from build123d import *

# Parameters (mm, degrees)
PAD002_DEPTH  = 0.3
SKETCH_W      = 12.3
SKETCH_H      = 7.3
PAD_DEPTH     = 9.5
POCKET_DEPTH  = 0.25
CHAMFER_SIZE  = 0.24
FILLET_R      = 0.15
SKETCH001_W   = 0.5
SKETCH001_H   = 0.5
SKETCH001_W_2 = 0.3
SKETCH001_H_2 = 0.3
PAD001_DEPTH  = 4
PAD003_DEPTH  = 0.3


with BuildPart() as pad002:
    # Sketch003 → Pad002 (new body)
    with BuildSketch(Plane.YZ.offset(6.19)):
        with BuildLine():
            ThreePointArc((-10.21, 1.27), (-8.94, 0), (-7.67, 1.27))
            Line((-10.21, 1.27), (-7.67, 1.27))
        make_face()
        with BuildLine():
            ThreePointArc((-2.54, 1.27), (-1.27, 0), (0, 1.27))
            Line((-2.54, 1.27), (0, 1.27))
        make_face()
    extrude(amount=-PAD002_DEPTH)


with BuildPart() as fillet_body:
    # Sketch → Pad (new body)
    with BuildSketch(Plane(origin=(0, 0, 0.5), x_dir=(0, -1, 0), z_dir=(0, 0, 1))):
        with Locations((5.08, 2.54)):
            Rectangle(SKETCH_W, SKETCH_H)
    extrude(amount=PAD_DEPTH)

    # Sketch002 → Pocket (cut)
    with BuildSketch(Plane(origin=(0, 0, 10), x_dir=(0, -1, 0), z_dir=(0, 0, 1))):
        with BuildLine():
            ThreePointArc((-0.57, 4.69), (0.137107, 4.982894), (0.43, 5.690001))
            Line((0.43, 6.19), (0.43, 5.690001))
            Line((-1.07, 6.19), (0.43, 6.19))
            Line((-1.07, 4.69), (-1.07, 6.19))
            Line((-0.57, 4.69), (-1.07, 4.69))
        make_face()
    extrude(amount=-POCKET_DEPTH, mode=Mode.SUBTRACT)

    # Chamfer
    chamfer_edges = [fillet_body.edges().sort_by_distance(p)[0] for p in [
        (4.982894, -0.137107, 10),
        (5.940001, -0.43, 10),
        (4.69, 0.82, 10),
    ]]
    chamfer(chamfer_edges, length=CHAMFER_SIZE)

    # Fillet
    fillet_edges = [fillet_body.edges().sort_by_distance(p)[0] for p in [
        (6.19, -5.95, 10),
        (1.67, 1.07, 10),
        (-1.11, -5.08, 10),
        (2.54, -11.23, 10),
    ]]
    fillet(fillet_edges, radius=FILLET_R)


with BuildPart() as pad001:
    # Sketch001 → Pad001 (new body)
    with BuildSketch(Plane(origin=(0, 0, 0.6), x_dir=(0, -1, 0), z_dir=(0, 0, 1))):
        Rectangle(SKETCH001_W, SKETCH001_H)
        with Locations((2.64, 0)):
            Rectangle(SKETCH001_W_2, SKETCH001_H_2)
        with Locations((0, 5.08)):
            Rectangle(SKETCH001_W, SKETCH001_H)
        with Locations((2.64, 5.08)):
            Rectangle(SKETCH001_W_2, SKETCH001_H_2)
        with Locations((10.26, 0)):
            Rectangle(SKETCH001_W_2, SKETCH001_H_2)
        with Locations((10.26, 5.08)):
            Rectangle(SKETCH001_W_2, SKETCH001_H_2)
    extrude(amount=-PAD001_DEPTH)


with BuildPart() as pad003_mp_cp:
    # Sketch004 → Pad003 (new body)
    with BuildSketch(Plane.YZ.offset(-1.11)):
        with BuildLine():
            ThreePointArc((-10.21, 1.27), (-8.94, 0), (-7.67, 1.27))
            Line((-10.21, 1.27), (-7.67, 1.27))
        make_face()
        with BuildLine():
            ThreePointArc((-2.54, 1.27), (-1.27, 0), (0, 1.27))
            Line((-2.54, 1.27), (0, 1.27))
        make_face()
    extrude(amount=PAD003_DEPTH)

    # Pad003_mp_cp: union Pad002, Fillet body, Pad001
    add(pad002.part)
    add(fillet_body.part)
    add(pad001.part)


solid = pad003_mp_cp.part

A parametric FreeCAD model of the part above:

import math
import FreeCAD as App
import Part
import Sketcher
from FreeCAD import Vector


def edges_at(feature, points):
    """Names of the edges that pass closest to the given points."""
    edges = feature.Shape.Edges
    near = lambda p: min(range(len(edges)), key=lambda i: edges[i].distToShape(Part.Vertex(*p))[0])
    return sorted({f"Edge{near(p) + 1}" for p in points})

doc = App.newDocument("Part")
body = doc.addObject("PartDesign::Body", "Body")
body.AllowCompound = True

sketch1 = doc.addObject("Sketcher::SketchObject", "Sketch")
body.addObject(sketch1)
sketch1.AttachmentSupport = (doc.YZ_Plane, [""])
sketch1.MapMode = "FlatFace"
sketch1.AttachmentOffset = App.Placement(Vector(0, 0, 6.19), App.Rotation())
sketch1.addGeometry(Part.ArcOfCircle(Part.Circle(Vector(-8.9, 1.3, 0), Vector(0, 0, 1), 1.3), math.radians(180), math.radians(360)), False)
sketch1.addGeometry(Part.LineSegment(Vector(-7.7, 1.3, 0), Vector(-10.2, 1.3, 0)), False)
sketch1.addGeometry(Part.ArcOfCircle(Part.Circle(Vector(-1.3, 1.3, 0), Vector(0, 0, 1), 1.3), math.radians(180), math.radians(360)), False)
sketch1.addGeometry(Part.LineSegment(Vector(0, 1.3, 0), Vector(-2.5, 1.3, 0)), False)
sketch1.addConstraint(Sketcher.Constraint("Coincident", 0, 1, 1, 2))
sketch1.addConstraint(Sketcher.Constraint("Coincident", 1, 1, 0, 2))
sketch1.addConstraint(Sketcher.Constraint("Coincident", 2, 1, 3, 2))
sketch1.addConstraint(Sketcher.Constraint("Coincident", 3, 1, 2, 2))
sketch1.addConstraint(Sketcher.Constraint("Horizontal", 1))
sketch1.addConstraint(Sketcher.Constraint("Horizontal", 3))
sketch1.addConstraint(Sketcher.Constraint("Equal", 0, 2))
sketch1.addConstraint(Sketcher.Constraint("PointOnObject", 3, 1, -2))
sketch1.addConstraint(Sketcher.Constraint("Horizontal", 0, 3, 2, 3))
sketch1.addConstraint(Sketcher.Constraint("Horizontal", 2, 3, 0, 1))
sketch1.addConstraint(Sketcher.Constraint("Horizontal", 1, 1, 2, 1))
sketch1.addConstraint(Sketcher.Constraint("Radius", 0, 1.27))
sketch1.addConstraint(Sketcher.Constraint("DistanceX", 1, 1, 2, 3, 6.4))
sketch1.addConstraint(Sketcher.Constraint("DistanceY", -1, 1, 0, 3, 1.27))
pad1 = doc.addObject("PartDesign::Pad", "Pad")
body.addObject(pad1)
pad1.Profile = sketch1
pad1.Length = 0.3
pad1.Reversed = True
body2 = doc.addObject("PartDesign::Body", "Body001")

sketch2 = doc.addObject("Sketcher::SketchObject", "Sketch001")
body2.addObject(sketch2)
sketch2.AttachmentSupport = (doc.getObject("XY_Plane001"), [""])
sketch2.MapMode = "FlatFace"
sketch2.AttachmentOffset = App.Placement(Vector(0, 0, 0.5), App.Rotation())
sketch2.addGeometry(Part.LineSegment(Vector(6, 1, 0), Vector(-1, 1, 0)), False)
sketch2.addGeometry(Part.LineSegment(Vector(-1, 1, 0), Vector(-1, -11, 0)), False)
sketch2.addGeometry(Part.LineSegment(Vector(-1, -11, 0), Vector(6, -11, 0)), False)
sketch2.addGeometry(Part.LineSegment(Vector(6, -11, 0), Vector(6, 1, 0)), False)
sketch2.addConstraint(Sketcher.Constraint("Coincident", 0, 2, 1, 1))
sketch2.addConstraint(Sketcher.Constraint("Coincident", 1, 2, 2, 1))
sketch2.addConstraint(Sketcher.Constraint("Coincident", 2, 2, 3, 1))
sketch2.addConstraint(Sketcher.Constraint("Coincident", 3, 2, 0, 1))
sketch2.addConstraint(Sketcher.Constraint("Horizontal", 0))
sketch2.addConstraint(Sketcher.Constraint("Vertical", 1))
sketch2.addConstraint(Sketcher.Constraint("Horizontal", 2))
sketch2.addConstraint(Sketcher.Constraint("Vertical", 3))
sketch2.addConstraint(Sketcher.Constraint("DistanceX", 0, 2, 0, 1, 7.3))
sketch2.addConstraint(Sketcher.Constraint("DistanceY", 1, 2, 1, 1, 12.3))
sketch2.addConstraint(Sketcher.Constraint("DistanceX", 0, 2, -1, 1, 1.11))
sketch2.addConstraint(Sketcher.Constraint("DistanceY", -1, 1, 0, 2, 1.07))
pad2 = doc.addObject("PartDesign::Pad", "Pad001")
body2.addObject(pad2)
pad2.Profile = sketch2
pad2.Length = 9.5

sketch3 = doc.addObject("Sketcher::SketchObject", "Sketch002")
body2.addObject(sketch3)
sketch3.AttachmentSupport = (doc.getObject("XY_Plane001"), [""])
sketch3.MapMode = "FlatFace"
sketch3.AttachmentOffset = App.Placement(Vector(0, 0, 10), App.Rotation())
sketch3.addGeometry(Part.ArcOfCircle(Part.Circle(Vector(5.69, 0.57, 0), Vector(0, 0, 1), 1), math.radians(-180), math.radians(-90)), False)
sketch3.addGeometry(Part.LineSegment(Vector(5.69, -0.43, 0), Vector(6.19, -0.43, 0)), False)
sketch3.addGeometry(Part.LineSegment(Vector(6.19, -0.43, 0), Vector(6.19, 1.07, 0)), False)
sketch3.addGeometry(Part.LineSegment(Vector(6.19, 1.07, 0), Vector(4.69, 1.07, 0)), False)
sketch3.addGeometry(Part.LineSegment(Vector(4.69, 1.07, 0), Vector(4.69, 0.57, 0)), False)
sketch3.addConstraint(Sketcher.Constraint("Tangent", 0, 2, 1, 1))
sketch3.addConstraint(Sketcher.Constraint("Coincident", 1, 2, 2, 1))
sketch3.addConstraint(Sketcher.Constraint("Coincident", 2, 2, 3, 1))
sketch3.addConstraint(Sketcher.Constraint("Coincident", 3, 2, 4, 1))
sketch3.addConstraint(Sketcher.Constraint("Tangent", 4, 2, 0, 1))
sketch3.addConstraint(Sketcher.Constraint("Horizontal", 1))
sketch3.addConstraint(Sketcher.Constraint("Vertical", 2))
sketch3.addConstraint(Sketcher.Constraint("Horizontal", 3))
sketch3.addConstraint(Sketcher.Constraint("Vertical", 4))
sketch3.addConstraint(Sketcher.Constraint("Equal", 3, 2))
sketch3.addConstraint(Sketcher.Constraint("Radius", 0, 1.000001))
sketch3.addConstraint(Sketcher.Constraint("DistanceX", 1, 1, 1, 2, 0.499999))
sketch3.addConstraint(Sketcher.Constraint("DistanceX", -1, 1, 0, 3, 5.690001))
sketch3.addConstraint(Sketcher.Constraint("DistanceY", -1, 1, 0, 3, 0.570001))
pocket1 = doc.addObject("PartDesign::Pocket", "Pocket")
body2.addObject(pocket1)
pocket1.Profile = sketch3
pocket1.Length = 0.25
doc.recompute()

chamfer = doc.addObject("PartDesign::Chamfer", "Chamfer")
body2.addObject(chamfer)
chamfer.Base = (pocket1, edges_at(pocket1, [(4.983, -0.137, 10), (5.94, -0.43, 10), (4.69, 0.82, 10)]))
chamfer.Size = 0.24
doc.recompute()

fillet = doc.addObject("PartDesign::Fillet", "Fillet")
body2.addObject(fillet)
fillet.Base = (chamfer, edges_at(chamfer, [
    (6.19, -5.95, 10),
    (1.67, 1.07, 10),
    (-1.11, -5.08, 10),
    (2.54, -11.23, 10),
]))
fillet.Radius = 0.15
body3 = doc.addObject("PartDesign::Body", "Body002")
body3.AllowCompound = True

sketch4 = doc.addObject("Sketcher::SketchObject", "Sketch003")
body3.addObject(sketch4)
sketch4.AttachmentSupport = (doc.getObject("XY_Plane002"), [""])
sketch4.MapMode = "FlatFace"
sketch4.AttachmentOffset = App.Placement(Vector(0, 0, 0.6), App.Rotation())
sketch4.addGeometry(Part.LineSegment(Vector(0.25, 0.25, 0), Vector(-0.25, 0.25, 0)), False)
sketch4.addGeometry(Part.LineSegment(Vector(-0.25, 0.25, 0), Vector(-0.25, -0.25, 0)), False)
sketch4.addGeometry(Part.LineSegment(Vector(-0.25, -0.25, 0), Vector(0.25, -0.25, 0)), False)
sketch4.addGeometry(Part.LineSegment(Vector(0.25, -0.25, 0), Vector(0.25, 0.25, 0)), False)
sketch4.addGeometry(Part.LineSegment(Vector(0.15, -2.49, 0), Vector(-0.15, -2.49, 0)), False)
sketch4.addGeometry(Part.LineSegment(Vector(-0.15, -2.49, 0), Vector(-0.15, -2.79, 0)), False)
sketch4.addGeometry(Part.LineSegment(Vector(-0.15, -2.79, 0), Vector(0.15, -2.79, 0)), False)
sketch4.addGeometry(Part.LineSegment(Vector(0.15, -2.79, 0), Vector(0.15, -2.49, 0)), False)
sketch4.addGeometry(Part.LineSegment(Vector(5.33, 0.25, 0), Vector(4.83, 0.25, 0)), False)
sketch4.addGeometry(Part.LineSegment(Vector(4.83, 0.25, 0), Vector(4.83, -0.25, 0)), False)
sketch4.addGeometry(Part.LineSegment(Vector(4.83, -0.25, 0), Vector(5.33, -0.25, 0)), False)
sketch4.addGeometry(Part.LineSegment(Vector(5.33, -0.25, 0), Vector(5.33, 0.25, 0)), False)
sketch4.addGeometry(Part.LineSegment(Vector(5.23, -2.49, 0), Vector(4.93, -2.49, 0)), False)
sketch4.addGeometry(Part.LineSegment(Vector(4.93, -2.49, 0), Vector(4.93, -2.79, 0)), False)
sketch4.addGeometry(Part.LineSegment(Vector(4.93, -2.79, 0), Vector(5.23, -2.79, 0)), False)
sketch4.addGeometry(Part.LineSegment(Vector(5.23, -2.79, 0), Vector(5.23, -2.49, 0)), False)
sketch4.addGeometry(Part.LineSegment(Vector(0.15, -10.11, 0), Vector(-0.15, -10.11, 0)), False)
sketch4.addGeometry(Part.LineSegment(Vector(-0.15, -10.11, 0), Vector(-0.15, -10.41, 0)), False)
sketch4.addGeometry(Part.LineSegment(Vector(-0.15, -10.41, 0), Vector(0.15, -10.41, 0)), False)
sketch4.addGeometry(Part.LineSegment(Vector(0.15, -10.41, 0), Vector(0.15, -10.11, 0)), False)
sketch4.addGeometry(Part.LineSegment(Vector(5.23, -10.11, 0), Vector(4.93, -10.11, 0)), False)
sketch4.addGeometry(Part.LineSegment(Vector(4.93, -10.11, 0), Vector(4.93, -10.41, 0)), False)
sketch4.addGeometry(Part.LineSegment(Vector(4.93, -10.41, 0), Vector(5.23, -10.41, 0)), False)
sketch4.addGeometry(Part.LineSegment(Vector(5.23, -10.41, 0), Vector(5.23, -10.11, 0)), False)
sketch4.addConstraint(Sketcher.Constraint("Coincident", 0, 2, 1, 1))
sketch4.addConstraint(Sketcher.Constraint("Coincident", 1, 2, 2, 1))
sketch4.addConstraint(Sketcher.Constraint("Coincident", 2, 2, 3, 1))
sketch4.addConstraint(Sketcher.Constraint("Coincident", 3, 2, 0, 1))
sketch4.addConstraint(Sketcher.Constraint("Coincident", 4, 2, 5, 1))
sketch4.addConstraint(Sketcher.Constraint("Coincident", 5, 2, 6, 1))
sketch4.addConstraint(Sketcher.Constraint("Coincident", 6, 2, 7, 1))
sketch4.addConstraint(Sketcher.Constraint("Coincident", 7, 2, 4, 1))
sketch4.addConstraint(Sketcher.Constraint("Coincident", 8, 2, 9, 1))
sketch4.addConstraint(Sketcher.Constraint("Coincident", 9, 2, 10, 1))
sketch4.addConstraint(Sketcher.Constraint("Coincident", 10, 2, 11, 1))
sketch4.addConstraint(Sketcher.Constraint("Coincident", 11, 2, 8, 1))
sketch4.addConstraint(Sketcher.Constraint("Coincident", 12, 2, 13, 1))
sketch4.addConstraint(Sketcher.Constraint("Coincident", 13, 2, 14, 1))
sketch4.addConstraint(Sketcher.Constraint("Coincident", 14, 2, 15, 1))
sketch4.addConstraint(Sketcher.Constraint("Coincident", 15, 2, 12, 1))
sketch4.addConstraint(Sketcher.Constraint("Coincident", 16, 2, 17, 1))
sketch4.addConstraint(Sketcher.Constraint("Coincident", 17, 2, 18, 1))
sketch4.addConstraint(Sketcher.Constraint("Coincident", 18, 2, 19, 1))
sketch4.addConstraint(Sketcher.Constraint("Coincident", 19, 2, 16, 1))
sketch4.addConstraint(Sketcher.Constraint("Coincident", 20, 2, 21, 1))
sketch4.addConstraint(Sketcher.Constraint("Coincident", 21, 2, 22, 1))
sketch4.addConstraint(Sketcher.Constraint("Coincident", 22, 2, 23, 1))
sketch4.addConstraint(Sketcher.Constraint("Coincident", 23, 2, 20, 1))
sketch4.addConstraint(Sketcher.Constraint("Horizontal", 0))
sketch4.addConstraint(Sketcher.Constraint("Vertical", 1))
sketch4.addConstraint(Sketcher.Constraint("Horizontal", 2))
sketch4.addConstraint(Sketcher.Constraint("Vertical", 3))
sketch4.addConstraint(Sketcher.Constraint("Horizontal", 4))
sketch4.addConstraint(Sketcher.Constraint("Vertical", 5))
sketch4.addConstraint(Sketcher.Constraint("Horizontal", 6))
sketch4.addConstraint(Sketcher.Constraint("Vertical", 7))
sketch4.addConstraint(Sketcher.Constraint("Horizontal", 8))
sketch4.addConstraint(Sketcher.Constraint("Vertical", 9))
sketch4.addConstraint(Sketcher.Constraint("Horizontal", 10))
sketch4.addConstraint(Sketcher.Constraint("Vertical", 11))
sketch4.addConstraint(Sketcher.Constraint("Horizontal", 12))
sketch4.addConstraint(Sketcher.Constraint("Vertical", 13))
sketch4.addConstraint(Sketcher.Constraint("Horizontal", 14))
sketch4.addConstraint(Sketcher.Constraint("Vertical", 15))
sketch4.addConstraint(Sketcher.Constraint("Horizontal", 16))
sketch4.addConstraint(Sketcher.Constraint("Vertical", 17))
sketch4.addConstraint(Sketcher.Constraint("Horizontal", 18))
sketch4.addConstraint(Sketcher.Constraint("Vertical", 19))
sketch4.addConstraint(Sketcher.Constraint("Horizontal", 20))
sketch4.addConstraint(Sketcher.Constraint("Vertical", 21))
sketch4.addConstraint(Sketcher.Constraint("Horizontal", 22))
sketch4.addConstraint(Sketcher.Constraint("Vertical", 23))
sketch4.addConstraint(Sketcher.Constraint("Symmetric", 0, 2, 2, 2, -1, 1))
sketch4.addConstraint(Sketcher.Constraint("Horizontal", 3, 2, 8, 2))
sketch4.addConstraint(Sketcher.Constraint("Horizontal", 2, 2, 9, 2))
sketch4.addConstraint(Sketcher.Constraint("Horizontal", 7, 2, 12, 2))
sketch4.addConstraint(Sketcher.Constraint("Horizontal", 6, 2, 13, 2))
sketch4.addConstraint(Sketcher.Constraint("Horizontal", 19, 2, 20, 2))
sketch4.addConstraint(Sketcher.Constraint("Horizontal", 18, 2, 21, 2))
sketch4.addConstraint(Sketcher.Constraint("Vertical", 5, 2, 16, 2))
sketch4.addConstraint(Sketcher.Constraint("Vertical", 7, 2, 18, 2))
sketch4.addConstraint(Sketcher.Constraint("Vertical", 13, 2, 20, 2))
sketch4.addConstraint(Sketcher.Constraint("Vertical", 15, 2, 22, 2))
sketch4.addConstraint(Sketcher.Constraint("Equal", 2, 8))
sketch4.addConstraint(Sketcher.Constraint("Equal", 6, 12))
sketch4.addConstraint(Sketcher.Constraint("Equal", 10, 1))
sketch4.addConstraint(Sketcher.Constraint("Equal", 22, 5))
sketch4.addConstraint(Sketcher.Constraint("Equal", 15, 17))
sketch4.addConstraint(Sketcher.Constraint("DistanceX", 0, 2, 0, 1, 0.5))
sketch4.addConstraint(Sketcher.Constraint("DistanceX", 4, 2, 4, 1, 0.3))
sketch4.addConstraint(Sketcher.Constraint("DistanceX", 1, 2, 4, 2, 0.1))
sketch4.addConstraint(Sketcher.Constraint("DistanceX", 9, 2, 12, 2, 0.1))
sketch4.addConstraint(Sketcher.Constraint("DistanceY", 4, 2, -1, 1, 2.49))
sketch4.addConstraint(Sketcher.Constraint("DistanceX", -1, 1, 8, 2, 4.83))
sketch4.addConstraint(Sketcher.Constraint("DistanceY", 16, 2, -1, 1, 10.11))
pad3 = doc.addObject("PartDesign::Pad", "Pad002")
body3.addObject(pad3)
pad3.Profile = sketch4
pad3.Length = 4
pad3.Reversed = True
body4 = doc.addObject("PartDesign::Body", "Body003")
body4.AllowCompound = True

sketch5 = doc.addObject("Sketcher::SketchObject", "Sketch004")
body4.addObject(sketch5)
sketch5.AttachmentSupport = (doc.getObject("YZ_Plane003"), [""])
sketch5.MapMode = "FlatFace"
sketch5.AttachmentOffset = App.Placement(Vector(0, 0, -1.11), App.Rotation())
sketch5.addGeometry(Part.ArcOfCircle(Part.Circle(Vector(-8.9, 1.3, 0), Vector(0, 0, 1), 1.3), math.radians(180), math.radians(360)), False)
sketch5.addGeometry(Part.LineSegment(Vector(-7.7, 1.3, 0), Vector(-10.2, 1.3, 0)), False)
sketch5.addGeometry(Part.ArcOfCircle(Part.Circle(Vector(-1.3, 1.3, 0), Vector(0, 0, 1), 1.3), math.radians(180), math.radians(360)), False)
sketch5.addGeometry(Part.LineSegment(Vector(0, 1.3, 0), Vector(-2.5, 1.3, 0)), False)
sketch5.addConstraint(Sketcher.Constraint("Coincident", 0, 1, 1, 2))
sketch5.addConstraint(Sketcher.Constraint("Coincident", 1, 1, 0, 2))
sketch5.addConstraint(Sketcher.Constraint("Coincident", 2, 1, 3, 2))
sketch5.addConstraint(Sketcher.Constraint("Coincident", 3, 1, 2, 2))
sketch5.addConstraint(Sketcher.Constraint("Horizontal", 1))
sketch5.addConstraint(Sketcher.Constraint("Horizontal", 3))
sketch5.addConstraint(Sketcher.Constraint("Equal", 0, 2))
sketch5.addConstraint(Sketcher.Constraint("PointOnObject", 3, 1, -2))
sketch5.addConstraint(Sketcher.Constraint("Horizontal", 0, 3, 2, 3))
sketch5.addConstraint(Sketcher.Constraint("Horizontal", 2, 3, 0, 1))
sketch5.addConstraint(Sketcher.Constraint("Horizontal", 1, 1, 2, 1))
sketch5.addConstraint(Sketcher.Constraint("Radius", 0, 1.27))
sketch5.addConstraint(Sketcher.Constraint("DistanceX", 1, 1, 2, 3, 6.4))
sketch5.addConstraint(Sketcher.Constraint("DistanceY", -1, 1, 0, 3, 1.27))
pad4 = doc.addObject("PartDesign::Pad", "Pad003")
body4.addObject(pad4)
pad4.Profile = sketch5
pad4.Length = 0.3
doc.recompute()

boolean = doc.addObject("PartDesign::Boolean", "Boolean")
body4.addObject(boolean)
boolean.Type = "Fuse"
boolean.addObjects([body])
doc.recompute()

boolean2 = doc.addObject("PartDesign::Boolean", "Boolean001")
body4.addObject(boolean2)
boolean2.Type = "Fuse"
boolean2.addObjects([body2])
doc.recompute()

boolean3 = doc.addObject("PartDesign::Boolean", "Boolean002")
body4.addObject(boolean3)
boolean3.Type = "Fuse"
boolean3.addObjects([body3])

doc.recompute()
